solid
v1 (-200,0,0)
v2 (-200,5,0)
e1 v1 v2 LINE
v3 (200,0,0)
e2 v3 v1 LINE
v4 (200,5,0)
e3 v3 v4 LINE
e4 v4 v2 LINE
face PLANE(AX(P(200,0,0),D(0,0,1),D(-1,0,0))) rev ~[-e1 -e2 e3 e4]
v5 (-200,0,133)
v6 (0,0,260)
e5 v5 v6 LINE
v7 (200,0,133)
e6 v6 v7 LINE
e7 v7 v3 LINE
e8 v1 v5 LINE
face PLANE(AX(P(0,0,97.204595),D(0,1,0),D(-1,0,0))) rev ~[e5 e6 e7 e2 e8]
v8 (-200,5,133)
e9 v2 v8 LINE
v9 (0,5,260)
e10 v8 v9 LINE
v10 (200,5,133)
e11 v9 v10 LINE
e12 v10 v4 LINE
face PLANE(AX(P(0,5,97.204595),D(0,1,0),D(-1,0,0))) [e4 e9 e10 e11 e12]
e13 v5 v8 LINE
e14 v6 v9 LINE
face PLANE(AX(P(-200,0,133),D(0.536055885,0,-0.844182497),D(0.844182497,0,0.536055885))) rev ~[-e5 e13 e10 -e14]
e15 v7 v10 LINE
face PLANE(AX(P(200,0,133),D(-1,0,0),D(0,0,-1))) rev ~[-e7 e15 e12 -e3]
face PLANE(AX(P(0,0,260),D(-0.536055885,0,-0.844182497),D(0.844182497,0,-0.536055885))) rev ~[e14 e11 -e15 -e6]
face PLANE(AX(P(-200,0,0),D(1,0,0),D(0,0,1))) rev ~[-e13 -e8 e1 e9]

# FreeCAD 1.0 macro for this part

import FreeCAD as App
import Part
import Sketcher

V = App.Vector
Q = App.Units.Quantity


def add_polygon(sketch, points):
    """Adds a closed chain of lines whose ends are joined by coincident constraints."""
    first, n = sketch.GeometryCount, len(points)
    for a, b in zip(points, points[1:] + points[:1]):
        sketch.addGeometry(Part.LineSegment(App.Vector(*a, 0), App.Vector(*b, 0)), False)
    for i in range(n):
        sketch.addConstraint(Sketcher.Constraint("Coincident", first + i, 2, first + (i + 1) % n, 1))

doc = App.newDocument("Part")
body = doc.addObject("PartDesign::Body", "Body")

# Sketch on XZ plane
sketch1 = body.newObject("Sketcher::SketchObject", "Sketch")
sketch1.AttachmentSupport = (doc.getObject("XZ_Plane"), [""])
sketch1.MapMode = "FlatFace"
add_polygon(sketch1, [(-200, 0), (-200, 133), (0, 260), (200, 133), (200, 0)])  # lines 0-4
sketch1.addConstraint([
    Sketcher.Constraint("Vertical", 0),
    Sketcher.Constraint("Vertical", 3),
    Sketcher.Constraint("Horizontal", 4),
    Sketcher.Constraint("Symmetric", 3, 2, 4, 2, -1, 1),
    Sketcher.Constraint("PointOnObject", 1, 2, -2),
    Sketcher.Constraint("Horizontal", 0, 2, 2, 2),
    Sketcher.Constraint("DistanceX", 4, 2, 4, 1, Q("400 mm")),
    Sketcher.Constraint("DistanceY", 0, 1, 0, 2, Q("133 mm")),
    Sketcher.Constraint("DistanceY", -1, 1, 1, 2, Q("260 mm")),
])
pad1 = body.newObject("PartDesign::Pad", "Pad")
pad1.Profile = sketch1
pad1.Length = 5
pad1.Reversed = True

doc.recompute()
